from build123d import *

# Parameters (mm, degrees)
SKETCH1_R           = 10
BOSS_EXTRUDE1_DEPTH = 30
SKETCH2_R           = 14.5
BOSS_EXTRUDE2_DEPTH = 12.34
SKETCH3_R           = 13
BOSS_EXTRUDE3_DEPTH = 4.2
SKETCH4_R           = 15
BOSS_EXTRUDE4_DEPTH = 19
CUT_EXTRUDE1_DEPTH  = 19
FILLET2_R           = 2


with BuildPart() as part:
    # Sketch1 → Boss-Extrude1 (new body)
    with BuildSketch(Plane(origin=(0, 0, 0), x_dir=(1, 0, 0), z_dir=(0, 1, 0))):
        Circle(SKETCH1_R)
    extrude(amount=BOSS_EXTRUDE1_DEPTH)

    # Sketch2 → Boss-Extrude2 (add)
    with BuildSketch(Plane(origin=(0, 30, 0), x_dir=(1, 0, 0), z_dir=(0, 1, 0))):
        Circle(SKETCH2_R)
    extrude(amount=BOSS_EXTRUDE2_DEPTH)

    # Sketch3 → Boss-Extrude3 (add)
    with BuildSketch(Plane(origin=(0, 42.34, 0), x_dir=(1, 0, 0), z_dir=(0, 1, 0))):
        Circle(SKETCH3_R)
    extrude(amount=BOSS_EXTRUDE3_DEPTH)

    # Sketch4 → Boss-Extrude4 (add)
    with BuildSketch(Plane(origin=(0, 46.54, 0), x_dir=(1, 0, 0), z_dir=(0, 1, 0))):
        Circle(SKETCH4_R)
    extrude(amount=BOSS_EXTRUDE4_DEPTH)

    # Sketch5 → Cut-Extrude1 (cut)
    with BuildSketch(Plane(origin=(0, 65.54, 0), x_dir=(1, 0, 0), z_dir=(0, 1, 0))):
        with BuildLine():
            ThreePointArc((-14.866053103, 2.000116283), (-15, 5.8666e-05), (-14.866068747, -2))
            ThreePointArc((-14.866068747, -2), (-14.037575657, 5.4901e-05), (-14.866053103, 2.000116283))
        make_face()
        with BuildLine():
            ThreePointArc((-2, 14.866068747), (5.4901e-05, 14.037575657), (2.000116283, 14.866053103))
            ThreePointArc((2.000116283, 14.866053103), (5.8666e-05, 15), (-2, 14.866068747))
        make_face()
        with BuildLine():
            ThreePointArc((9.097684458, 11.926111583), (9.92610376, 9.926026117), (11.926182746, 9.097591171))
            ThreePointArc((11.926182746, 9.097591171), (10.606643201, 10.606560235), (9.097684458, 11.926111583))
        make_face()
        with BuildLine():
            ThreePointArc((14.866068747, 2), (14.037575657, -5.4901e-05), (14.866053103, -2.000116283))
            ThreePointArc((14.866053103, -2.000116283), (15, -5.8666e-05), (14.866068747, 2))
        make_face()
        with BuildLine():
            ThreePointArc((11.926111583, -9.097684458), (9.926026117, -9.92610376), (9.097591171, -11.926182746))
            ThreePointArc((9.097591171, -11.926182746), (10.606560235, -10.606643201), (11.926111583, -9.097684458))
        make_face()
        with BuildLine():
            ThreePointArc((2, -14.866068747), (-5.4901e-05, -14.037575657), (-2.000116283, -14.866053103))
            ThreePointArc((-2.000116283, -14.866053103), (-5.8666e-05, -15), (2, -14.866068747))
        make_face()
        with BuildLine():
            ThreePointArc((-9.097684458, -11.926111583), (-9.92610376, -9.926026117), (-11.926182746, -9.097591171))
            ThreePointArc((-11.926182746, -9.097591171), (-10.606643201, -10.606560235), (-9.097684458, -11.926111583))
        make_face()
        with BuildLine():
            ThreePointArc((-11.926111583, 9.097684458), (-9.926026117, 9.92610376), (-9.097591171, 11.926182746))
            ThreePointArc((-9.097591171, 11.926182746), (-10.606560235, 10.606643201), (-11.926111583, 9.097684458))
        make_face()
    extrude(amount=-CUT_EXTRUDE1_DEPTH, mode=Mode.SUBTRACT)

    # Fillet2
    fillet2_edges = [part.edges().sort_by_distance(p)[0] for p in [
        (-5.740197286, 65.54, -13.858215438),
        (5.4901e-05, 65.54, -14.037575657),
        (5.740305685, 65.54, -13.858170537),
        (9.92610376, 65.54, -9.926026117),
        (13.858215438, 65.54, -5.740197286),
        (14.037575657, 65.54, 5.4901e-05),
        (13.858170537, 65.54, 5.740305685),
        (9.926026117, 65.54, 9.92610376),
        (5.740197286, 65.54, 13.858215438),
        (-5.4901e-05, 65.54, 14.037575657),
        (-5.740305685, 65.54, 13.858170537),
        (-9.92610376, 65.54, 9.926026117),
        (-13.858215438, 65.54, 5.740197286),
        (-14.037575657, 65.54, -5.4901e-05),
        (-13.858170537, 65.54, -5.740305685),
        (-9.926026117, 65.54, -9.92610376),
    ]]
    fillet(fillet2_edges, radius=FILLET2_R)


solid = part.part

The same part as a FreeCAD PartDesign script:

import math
import FreeCAD as App
import Part
import Sketcher
from FreeCAD import Vector
Q = App.Units.Quantity


def edges_at(feature, points):
    """Names of the edges that pass closest to the given points."""
    edges = feature.Shape.Edges
    near = lambda p: min(range(len(edges)), key=lambda i: edges[i].distToShape(Part.Vertex(*p))[0])
    return sorted({f"Edge{near(p) + 1}" for p in points})

doc = App.newDocument("Part")
body = doc.addObject("PartDesign::Body", "Body")

# Sketch on XZ plane
sketch1 = body.newObject("Sketcher::SketchObject", "Sketch")
sketch1.AttachmentSupport = (doc.getObject("XZ_Plane"), [""])
sketch1.MapMode = "FlatFace"
sketch1.addGeometry(Part.Circle(Vector(0, 0, 0), Vector(0, 0, 1), 10), False)
sketch1.addConstraint([
    Sketcher.Constraint("Coincident", 0, 3, -1, 1),
    Sketcher.Constraint("Diameter", 0, Q("20 mm")),
])
pad1 = body.newObject("PartDesign::Pad", "Pad")
pad1.Profile = sketch1
pad1.Length = 30
pad1.Reversed = True

# Sketch on XZ plane
sketch2 = body.newObject("Sketcher::SketchObject", "Sketch001")
sketch2.AttachmentSupport = (doc.getObject("XZ_Plane"), [""])
sketch2.MapMode = "FlatFace"
sketch2.AttachmentOffset = App.Placement(Vector(0, 0, -30), App.Rotation())
sketch2.addGeometry(Part.Circle(Vector(0, 0, 0), Vector(0, 0, 1), 14.5), False)
sketch2.addConstraint([
    Sketcher.Constraint("Coincident", 0, 3, -1, 1),
    Sketcher.Constraint("Diameter", 0, Q("29 mm")),
])
pad2 = body.newObject("PartDesign::Pad", "Pad001")
pad2.Profile = sketch2
pad2.Length = 12.34
pad2.Reversed = True

# Sketch on XZ plane
sketch3 = body.newObject("Sketcher::SketchObject", "Sketch002")
sketch3.AttachmentSupport = (doc.getObject("XZ_Plane"), [""])
sketch3.MapMode = "FlatFace"
sketch3.AttachmentOffset = App.Placement(Vector(0, 0, -42.34), App.Rotation())
sketch3.addGeometry(Part.Circle(Vector(0, 0, 0), Vector(0, 0, 1), 13), False)
sketch3.addConstraint([
    Sketcher.Constraint("Coincident", 0, 3, -1, 1),
    Sketcher.Constraint("Diameter", 0, Q("26 mm")),
])
pad3 = body.newObject("PartDesign::Pad", "Pad002")
pad3.Profile = sketch3
pad3.Length = 4.2
pad3.Reversed = True

# Sketch on XZ plane
sketch4 = body.newObject("Sketcher::SketchObject", "Sketch003")
sketch4.AttachmentSupport = (doc.getObject("XZ_Plane"), [""])
sketch4.MapMode = "FlatFace"
sketch4.AttachmentOffset = App.Placement(Vector(0, 0, -46.54), App.Rotation())
sketch4.addGeometry(Part.Circle(Vector(0, 0, 0), Vector(0, 0, 1), 15), False)
sketch4.addConstraint([
    Sketcher.Constraint("Coincident", 0, 3, -1, 1),
    Sketcher.Constraint("Diameter", 0, Q("30 mm")),
])
pad4 = body.newObject("PartDesign::Pad", "Pad003")
pad4.Profile = sketch4
pad4.Length = 19
pad4.Reversed = True

# Sketch on XZ plane
sketch5 = body.newObject("Sketcher::SketchObject", "Sketch004")
sketch5.AttachmentSupport = (doc.getObject("XZ_Plane"), [""])
sketch5.MapMode = "FlatFace"
sketch5.AttachmentOffset = App.Placement(Vector(0, 0, -65.54), App.Rotation())
sketch5.addGeometry([
    Part.ArcOfCircle(Part.Circle(Vector(0, 0, 0), Vector(0, 0, 1), 15), math.radians(172.337744), math.radians(187.662704)),  # 0
    Part.ArcOfCircle(Part.Circle(Vector(-16.866003, -0.000066, 0), Vector(0, 0, 1), 2.828427), math.radians(-45.001442), math.radians(45.00189)),  # 1
    Part.ArcOfCircle(Part.Circle(Vector(0.000066, -16.866003, 0), Vector(0, 0, 1), 2.828427), math.radians(44.998558), math.radians(135.00189)),  # 2
    Part.ArcOfCircle(Part.Circle(Vector(0, 0, 0), Vector(0, 0, 1), 15), math.radians(-97.662256), math.radians(-82.337296)),  # 3
    Part.ArcOfCircle(Part.Circle(Vector(11.926112, -11.926018, 0), Vector(0, 0, 1), 2.828427), math.radians(89.998558), math.radians(180.00189)),  # 4
    Part.ArcOfCircle(Part.Circle(Vector(0, 0, 0), Vector(0, 0, 1), 15), math.radians(-52.662256), math.radians(-37.337296)),  # 5
    Part.ArcOfCircle(Part.Circle(Vector(16.866003, 0.000066, 0), Vector(0, 0, 1), 2.828427), math.radians(134.998558), math.radians(225.00189)),  # 6
    Part.ArcOfCircle(Part.Circle(Vector(0, 0, 0), Vector(0, 0, 1), 15), math.radians(-7.662256), math.radians(7.662704)),  # 7
    Part.ArcOfCircle(Part.Circle(Vector(11.926018, 11.926112, 0), Vector(0, 0, 1), 2.828427), math.radians(179.998558), math.radians(270.00189)),  # 8
    Part.ArcOfCircle(Part.Circle(Vector(0, 0, 0), Vector(0, 0, 1), 15), math.radians(37.337744), math.radians(52.662704)),  # 9
    Part.ArcOfCircle(Part.Circle(Vector(-0.000066, 16.866003, 0), Vector(0, 0, 1), 2.828427), math.radians(-135.001442), math.radians(-44.99811)),  # 10
    Part.ArcOfCircle(Part.Circle(Vector(0, 0, 0), Vector(0, 0, 1), 15), math.radians(82.337744), math.radians(97.662704)),  # 11
    Part.ArcOfCircle(Part.Circle(Vector(-11.926112, 11.926018, 0), Vector(0, 0, 1), 2.828427), math.radians(-90.001442), math.radians(0.00189)),  # 12
    Part.ArcOfCircle(Part.Circle(Vector(0, 0, 0), Vector(0, 0, 1), 15), math.radians(127.337744), math.radians(142.662704)),  # 13
    Part.ArcOfCircle(Part.Circle(Vector(-11.926018, -11.926112, 0), Vector(0, 0, 1), 2.828427), math.radians(-0.001442), math.radians(90.00189)),  # 14
    Part.ArcOfCircle(Part.Circle(Vector(0, 0, 0), Vector(0, 0, 1), 15), math.radians(-142.662256), math.radians(-127.337296)),  # 15
], False)
sketch5.addConstraint([
    Sketcher.Constraint("Coincident", 0, 1, 1, 2),
    Sketcher.Constraint("Coincident", 1, 1, 0, 2),
    Sketcher.Constraint("Coincident", 2, 1, 3, 2),
    Sketcher.Constraint("Coincident", 3, 1, 2, 2),
    Sketcher.Constraint("Coincident", 4, 1, 5, 2),
    Sketcher.Constraint("Coincident", 5, 1, 4, 2),
    Sketcher.Constraint("Coincident", 6, 1, 7, 2),
    Sketcher.Constraint("Coincident", 7, 1, 6, 2),
    Sketcher.Constraint("Coincident", 8, 1, 9, 2),
    Sketcher.Constraint("Coincident", 9, 1, 8, 2),
    Sketcher.Constraint("Coincident", 10, 1, 11, 2),
    Sketcher.Constraint("Coincident", 11, 1, 10, 2),
    Sketcher.Constraint("Coincident", 12, 1, 13, 2),
    Sketcher.Constraint("Coincident", 13, 1, 12, 2),
    Sketcher.Constraint("Coincident", 14, 1, 15, 2),
    Sketcher.Constraint("Coincident", 15, 1, 14, 2),
    Sketcher.Constraint("Coincident", 0, 3, -1, 1),
    Sketcher.Constraint("Coincident", 3, 3, -1, 1),
    Sketcher.Constraint("Coincident", 5, 3, -1, 1),
    Sketcher.Constraint("Coincident", 7, 3, -1, 1),
    Sketcher.Constraint("Coincident", 9, 3, -1, 1),
    Sketcher.Constraint("Coincident", 11, 3, -1, 1),
    Sketcher.Constraint("Coincident", 13, 3, -1, 1),
    Sketcher.Constraint("Coincident", 15, 3, -1, 1),
    Sketcher.Constraint("Equal", 1, 2),
    Sketcher.Constraint("Equal", 0, 3),
    Sketcher.Constraint("Equal", 2, 4),
    Sketcher.Constraint("Equal", 3, 5),
    Sketcher.Constraint("Equal", 4, 6),
    Sketcher.Constraint("Equal", 5, 7),
    Sketcher.Constraint("Equal", 6, 8),
    Sketcher.Constraint("Equal", 7, 9),
    Sketcher.Constraint("Equal", 8, 10),
    Sketcher.Constraint("Equal", 9, 11),
    Sketcher.Constraint("Equal", 10, 12),
    Sketcher.Constraint("Equal", 11, 13),
    Sketcher.Constraint("Equal", 12, 14),
    Sketcher.Constraint("Equal", 13, 15),
    Sketcher.Constraint("Symmetric", 1, 3, 6, 3, -1, 1),
    Sketcher.Constraint("Symmetric", 2, 3, 10, 3, -1, 1),
    Sketcher.Constraint("Symmetric", 4, 3, 12, 3, -1, 1),
    Sketcher.Constraint("Symmetric", 8, 3, 14, 3, -1, 1),
    Sketcher.Constraint("Horizontal", 14, 3, 5, 1),
    Sketcher.Constraint("Vertical", 4, 3, 9, 1),
    Sketcher.Constraint("Radius", 0, Q("15 mm")),
    Sketcher.Constraint("DistanceY", -1, 1, 0, 1, Q("2 mm")),
    Sketcher.Constraint("DistanceX", 3, 1, -1, 1, Q("2 mm")),
    Sketcher.Constraint("Radius", 1, Q("2.828427 mm")),
    Sketcher.Constraint("DistanceX", 5, 1, 4, 1, Q("2.828498 mm")),
    Sketcher.Constraint("DistanceY", 9, 1, 8, 1, Q("2.828498 mm")),
    Sketcher.Constraint("DistanceX", 1, 3, 2, 3, Q("16.866069 mm")),
    Sketcher.Constraint("DistanceX", 4, 3, 6, 3, Q("4.939891 mm")),
])
pocket1 = body.newObject("PartDesign::Pocket", "Pocket")
pocket1.Profile = sketch5
pocket1.Length = 19
pocket1.Reversed = True
doc.recompute()

fillet = body.newObject("PartDesign::Fillet", "Fillet")
fillet.Base = (pocket1, edges_at(pocket1, [
    (-5.74, 65.54, -13.858),
    (0, 65.54, -14.038),
    (5.74, 65.54, -13.858),
    (9.926, 65.54, -9.926),
    (13.858, 65.54, -5.74),
    (14.038, 65.54, 0),
    (13.858, 65.54, 5.74),
    (9.926, 65.54, 9.926),
    (5.74, 65.54, 13.858),
    (0, 65.54, 14.038),
    (-5.74, 65.54, 13.858),
    (-9.926, 65.54, 9.926),
    (-13.858, 65.54, 5.74),
    (-14.038, 65.54, 0),
    (-13.858, 65.54, -5.74),
    (-9.926, 65.54, -9.926),
]))
fillet.Radius = 2

doc.recompute()
